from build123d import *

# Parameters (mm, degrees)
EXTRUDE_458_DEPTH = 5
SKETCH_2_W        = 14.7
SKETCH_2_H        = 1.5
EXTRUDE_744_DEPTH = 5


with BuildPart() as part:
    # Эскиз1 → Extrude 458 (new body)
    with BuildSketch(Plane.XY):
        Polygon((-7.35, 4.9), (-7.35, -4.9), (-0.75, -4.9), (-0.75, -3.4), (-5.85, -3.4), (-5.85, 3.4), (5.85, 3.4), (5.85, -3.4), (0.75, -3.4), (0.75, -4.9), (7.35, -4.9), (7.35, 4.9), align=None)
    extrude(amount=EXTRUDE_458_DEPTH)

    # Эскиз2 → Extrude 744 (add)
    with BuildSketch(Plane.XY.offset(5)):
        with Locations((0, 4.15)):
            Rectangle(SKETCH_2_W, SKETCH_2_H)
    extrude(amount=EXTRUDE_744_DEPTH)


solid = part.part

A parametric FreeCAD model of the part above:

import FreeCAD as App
import Part
import Sketcher

V = App.Vector
Q = App.Units.Quantity

doc = App.newDocument("Part")
body = doc.addObject("PartDesign::Body", "Body")

# Sketch on XY plane
sketch1 = doc.addObject("Sketcher::SketchObject", "Sketch")
body.addObject(sketch1)
sketch1.AttachmentSupport = (doc.XY_Plane, [""])
sketch1.MapMode = "FlatFace"
sketch1.addGeometry(Part.LineSegment(V(-7.35, 4.9, 0), V(-7.35, -4.9, 0)), False)
sketch1.addGeometry(Part.LineSegment(V(-7.35, -4.9, 0), V(-0.75, -4.9, 0)), False)
sketch1.addGeometry(Part.LineSegment(V(-0.75, -4.9, 0), V(-0.75, -3.4, 0)), False)
sketch1.addGeometry(Part.LineSegment(V(-0.75, -3.4, 0), V(-5.85, -3.4, 0)), False)
sketch1.addGeometry(Part.LineSegment(V(-5.85, -3.4, 0), V(-5.85, 3.4, 0)), False)
sketch1.addGeometry(Part.LineSegment(V(-5.85, 3.4, 0), V(5.85, 3.4, 0)), False)
sketch1.addGeometry(Part.LineSegment(V(5.85, 3.4, 0), V(5.85, -3.4, 0)), False)
sketch1.addGeometry(Part.LineSegment(V(5.85, -3.4, 0), V(0.75, -3.4, 0)), False)
sketch1.addGeometry(Part.LineSegment(V(0.75, -3.4, 0), V(0.75, -4.9, 0)), False)
sketch1.addGeometry(Part.LineSegment(V(0.75, -4.9, 0), V(7.35, -4.9, 0)), False)
sketch1.addGeometry(Part.LineSegment(V(7.35, -4.9, 0), V(7.35, 4.9, 0)), False)
sketch1.addGeometry(Part.LineSegment(V(7.35, 4.9, 0), V(-7.35, 4.9, 0)), False)
sketch1.addConstraint(Sketcher.Constraint("Coincident", 0, 2, 1, 1))
sketch1.addConstraint(Sketcher.Constraint("Coincident", 1, 2, 2, 1))
sketch1.addConstraint(Sketcher.Constraint("Coincident", 2, 2, 3, 1))
sketch1.addConstraint(Sketcher.Constraint("Coincident", 3, 2, 4, 1))
sketch1.addConstraint(Sketcher.Constraint("Coincident", 4, 2, 5, 1))
sketch1.addConstraint(Sketcher.Constraint("Coincident", 5, 2, 6, 1))
sketch1.addConstraint(Sketcher.Constraint("Coincident", 6, 2, 7, 1))
sketch1.addConstraint(Sketcher.Constraint("Coincident", 7, 2, 8, 1))
sketch1.addConstraint(Sketcher.Constraint("Coincident", 8, 2, 9, 1))
sketch1.addConstraint(Sketcher.Constraint("Coincident", 9, 2, 10, 1))
sketch1.addConstraint(Sketcher.Constraint("Coincident", 10, 2, 11, 1))
sketch1.addConstraint(Sketcher.Constraint("Coincident", 11, 2, 0, 1))
sketch1.addConstraint(Sketcher.Constraint("Vertical", 0))
sketch1.addConstraint(Sketcher.Constraint("Horizontal", 1))
sketch1.addConstraint(Sketcher.Constraint("Vertical", 2))
sketch1.addConstraint(Sketcher.Constraint("Horizontal", 3))
sketch1.addConstraint(Sketcher.Constraint("Vertical", 4))
sketch1.addConstraint(Sketcher.Constraint("Horizontal", 5))
sketch1.addConstraint(Sketcher.Constraint("Vertical", 6))
sketch1.addConstraint(Sketcher.Constraint("Horizontal", 7))
sketch1.addConstraint(Sketcher.Constraint("Vertical", 8))
sketch1.addConstraint(Sketcher.Constraint("Horizontal", 9))
sketch1.addConstraint(Sketcher.Constraint("Vertical", 10))
sketch1.addConstraint(Sketcher.Constraint("Horizontal", 11))
sketch1.addConstraint(Sketcher.Constraint("Symmetric", 3, 2, 5, 2, -1, 1))
sketch1.addConstraint(Sketcher.Constraint("Symmetric", 0, 2, 10, 2, -1, 1))
sketch1.addConstraint(Sketcher.Constraint("Symmetric", 2, 2, 7, 2, -2))
sketch1.addConstraint(Sketcher.Constraint("Horizontal", 1, 2, 8, 2))
sketch1.addConstraint(Sketcher.Constraint("DistanceX", 1, 1, 1, 2, Q("6.6 mm")))
sketch1.addConstraint(Sketcher.Constraint("DistanceX", 3, 2, 3, 1, Q("5.1 mm")))
sketch1.addConstraint(Sketcher.Constraint("DistanceX", 5, 1, 5, 2, Q("11.7 mm")))
sketch1.addConstraint(Sketcher.Constraint("DistanceY", 0, 2, 0, 1, Q("9.8 mm")))
sketch1.addConstraint(Sketcher.Constraint("DistanceY", 2, 1, 2, 2, Q("1.5 mm")))
pad1 = doc.addObject("PartDesign::Pad", "Pad")
body.addObject(pad1)
pad1.Profile = sketch1
pad1.Length = 5

# Sketch on XY plane
sketch2 = doc.addObject("Sketcher::SketchObject", "Sketch001")
body.addObject(sketch2)
sketch2.AttachmentSupport = (doc.XY_Plane, [""])
sketch2.MapMode = "FlatFace"
sketch2.AttachmentOffset = App.Placement(V(0, 0, 5), App.Rotation())
sketch2.addGeometry(Part.LineSegment(V(-7.35, 4.9, 0), V(-7.35, 3.4, 0)), False)
sketch2.addGeometry(Part.LineSegment(V(-7.35, 3.4, 0), V(7.35, 3.4, 0)), False)
sketch2.addGeometry(Part.LineSegment(V(7.35, 3.4, 0), V(7.35, 4.9, 0)), False)
sketch2.addGeometry(Part.LineSegment(V(7.35, 4.9, 0), V(-7.35, 4.9, 0)), False)
sketch2.addConstraint(Sketcher.Constraint("Coincident", 0, 2, 1, 1))
sketch2.addConstraint(Sketcher.Constraint("Coincident", 1, 2, 2, 1))
sketch2.addConstraint(Sketcher.Constraint("Coincident", 2, 2, 3, 1))
sketch2.addConstraint(Sketcher.Constraint("Coincident", 3, 2, 0, 1))
sketch2.addConstraint(Sketcher.Constraint("Vertical", 0))
sketch2.addConstraint(Sketcher.Constraint("Horizontal", 1))
sketch2.addConstraint(Sketcher.Constraint("Vertical", 2))
sketch2.addConstraint(Sketcher.Constraint("Horizontal", 3))
sketch2.addConstraint(Sketcher.Constraint("DistanceX", 1, 1, 1, 2, Q("14.7 mm")))
sketch2.addConstraint(Sketcher.Constraint("DistanceY", 0, 2, 0, 1, Q("1.5 mm")))
sketch2.addConstraint(Sketcher.Constraint("DistanceY", -1, 1, 0, 2, Q("3.4 mm")))
sketch2.addConstraint(Sketcher.Constraint("DistanceX", 0, 2, -1, 1, Q("7.35 mm")))
pad2 = doc.addObject("PartDesign::Pad", "Pad001")
body.addObject(pad2)
pad2.Profile = sketch2
pad2.Length = 5

doc.recompute()
